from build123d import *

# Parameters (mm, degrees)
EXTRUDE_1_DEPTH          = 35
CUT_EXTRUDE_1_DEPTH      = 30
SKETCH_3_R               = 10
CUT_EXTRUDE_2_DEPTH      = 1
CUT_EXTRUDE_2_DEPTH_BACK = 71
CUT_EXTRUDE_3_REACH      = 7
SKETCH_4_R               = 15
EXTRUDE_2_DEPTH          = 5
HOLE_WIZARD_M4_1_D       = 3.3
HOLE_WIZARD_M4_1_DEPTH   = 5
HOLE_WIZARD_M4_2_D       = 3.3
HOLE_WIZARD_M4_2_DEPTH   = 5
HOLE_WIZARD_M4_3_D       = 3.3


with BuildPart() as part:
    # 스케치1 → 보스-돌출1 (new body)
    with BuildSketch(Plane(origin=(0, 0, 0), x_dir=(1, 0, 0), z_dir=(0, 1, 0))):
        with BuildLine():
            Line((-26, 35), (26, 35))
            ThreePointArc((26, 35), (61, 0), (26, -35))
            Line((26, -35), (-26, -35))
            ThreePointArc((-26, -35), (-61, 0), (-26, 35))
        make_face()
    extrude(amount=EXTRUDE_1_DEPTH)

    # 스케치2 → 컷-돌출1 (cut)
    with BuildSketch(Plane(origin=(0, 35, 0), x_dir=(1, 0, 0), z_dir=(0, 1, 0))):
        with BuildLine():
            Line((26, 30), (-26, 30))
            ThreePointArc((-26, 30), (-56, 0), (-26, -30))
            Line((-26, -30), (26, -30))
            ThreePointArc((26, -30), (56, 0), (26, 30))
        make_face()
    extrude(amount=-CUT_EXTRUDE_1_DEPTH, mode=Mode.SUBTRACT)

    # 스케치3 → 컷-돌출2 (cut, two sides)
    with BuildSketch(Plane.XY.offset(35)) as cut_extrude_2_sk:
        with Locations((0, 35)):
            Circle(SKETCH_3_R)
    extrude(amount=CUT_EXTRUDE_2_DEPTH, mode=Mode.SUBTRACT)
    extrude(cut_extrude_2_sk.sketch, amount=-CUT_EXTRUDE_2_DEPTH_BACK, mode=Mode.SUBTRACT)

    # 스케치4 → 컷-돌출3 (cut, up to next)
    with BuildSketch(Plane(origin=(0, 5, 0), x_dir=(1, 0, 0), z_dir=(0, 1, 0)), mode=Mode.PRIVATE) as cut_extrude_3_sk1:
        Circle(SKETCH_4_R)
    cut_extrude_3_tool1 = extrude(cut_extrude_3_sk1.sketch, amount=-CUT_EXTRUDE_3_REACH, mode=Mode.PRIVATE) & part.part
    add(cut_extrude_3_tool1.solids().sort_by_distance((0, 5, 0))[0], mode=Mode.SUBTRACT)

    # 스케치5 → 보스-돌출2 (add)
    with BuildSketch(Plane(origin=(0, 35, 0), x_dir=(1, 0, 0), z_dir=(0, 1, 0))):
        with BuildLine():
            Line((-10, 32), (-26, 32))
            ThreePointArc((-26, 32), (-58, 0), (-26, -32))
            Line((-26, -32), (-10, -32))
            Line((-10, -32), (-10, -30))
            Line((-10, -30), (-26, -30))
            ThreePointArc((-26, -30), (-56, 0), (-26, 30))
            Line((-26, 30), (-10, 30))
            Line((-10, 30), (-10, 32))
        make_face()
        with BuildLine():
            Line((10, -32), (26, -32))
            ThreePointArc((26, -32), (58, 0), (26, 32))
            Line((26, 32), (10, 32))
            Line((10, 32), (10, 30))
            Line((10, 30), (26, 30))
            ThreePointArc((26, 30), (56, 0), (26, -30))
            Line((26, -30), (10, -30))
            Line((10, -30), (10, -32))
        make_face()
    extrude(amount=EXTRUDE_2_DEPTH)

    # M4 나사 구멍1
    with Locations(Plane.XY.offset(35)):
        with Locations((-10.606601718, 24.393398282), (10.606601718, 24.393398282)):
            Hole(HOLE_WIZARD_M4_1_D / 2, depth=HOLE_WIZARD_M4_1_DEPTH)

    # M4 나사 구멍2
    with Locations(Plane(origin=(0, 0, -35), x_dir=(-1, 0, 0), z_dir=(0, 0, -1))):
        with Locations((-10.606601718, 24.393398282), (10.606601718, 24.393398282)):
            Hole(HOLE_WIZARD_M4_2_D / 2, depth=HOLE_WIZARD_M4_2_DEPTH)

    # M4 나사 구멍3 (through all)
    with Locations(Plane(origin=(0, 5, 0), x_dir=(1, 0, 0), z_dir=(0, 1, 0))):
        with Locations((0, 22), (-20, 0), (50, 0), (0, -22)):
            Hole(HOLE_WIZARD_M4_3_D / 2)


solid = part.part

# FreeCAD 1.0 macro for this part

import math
import FreeCAD as App
import Part
import Sketcher

doc = App.newDocument("Part")
body = doc.addObject("PartDesign::Body", "Body")

# Sketch on XZ plane
sketch1 = body.newObject("Sketcher::SketchObject", "Sketch")
sketch1.AttachmentSupport = (doc.getObject("XZ_Plane"), [""])
sketch1.MapMode = "FlatFace"
sketch1.addGeometry([
    Part.LineSegment(App.Vector(26, -35, 0), App.Vector(-26, -35, 0)),
    Part.ArcOfCircle(Part.Circle(App.Vector(-26, 0, 0), App.Vector(0, 0, 1), 35), math.radians(90), math.radians(270)),
    Part.LineSegment(App.Vector(-26, 35, 0), App.Vector(26, 35, 0)),
    Part.ArcOfCircle(Part.Circle(App.Vector(26, 0, 0), App.Vector(0, 0, 1), 35), math.radians(-90), math.radians(90)),
], False)
sketch1.addConstraint([
    Sketcher.Constraint("Tangent", 0, 2, 1, 2),
    Sketcher.Constraint("Tangent", 1, 1, 2, 1),
    Sketcher.Constraint("Tangent", 2, 2, 3, 2),
    Sketcher.Constraint("Tangent", 3, 1, 0, 1),
    Sketcher.Constraint("Horizontal", 0),
    Sketcher.Constraint("Horizontal", 2),
    Sketcher.Constraint("Symmetric", 1, 3, 3, 3, -1, 1),
    Sketcher.Constraint("Radius", 1, 35.0),
    Sketcher.Constraint("DistanceX", 0, 2, 0, 1, 52.0),
])
pad1 = body.newObject("PartDesign::Pad", "Pad")
pad1.Profile = sketch1
pad1.Length = 35
pad1.Reversed = True

# Sketch on XZ plane
sketch2 = body.newObject("Sketcher::SketchObject", "Sketch001")
sketch2.AttachmentSupport = (doc.getObject("XZ_Plane"), [""])
sketch2.MapMode = "FlatFace"
sketch2.AttachmentOffset = App.Placement(App.Vector(0, 0, -35), App.Rotation())
sketch2.addGeometry([
    Part.LineSegment(App.Vector(26, -30, 0), App.Vector(-26, -30, 0)),
    Part.ArcOfCircle(Part.Circle(App.Vector(-26, 0, 0), App.Vector(0, 0, 1), 30), math.radians(90), math.radians(270)),
    Part.LineSegment(App.Vector(-26, 30, 0), App.Vector(26, 30, 0)),
    Part.ArcOfCircle(Part.Circle(App.Vector(26, 0, 0), App.Vector(0, 0, 1), 30), math.radians(-90), math.radians(90)),
], False)
sketch2.addConstraint([
    Sketcher.Constraint("Tangent", 0, 2, 1, 2),
    Sketcher.Constraint("Tangent", 1, 1, 2, 1),
    Sketcher.Constraint("Tangent", 2, 2, 3, 2),
    Sketcher.Constraint("Tangent", 3, 1, 0, 1),
    Sketcher.Constraint("Horizontal", 0),
    Sketcher.Constraint("Horizontal", 2),
    Sketcher.Constraint("Symmetric", 1, 3, 3, 3, -1, 1),
    Sketcher.Constraint("Radius", 1, 30.0),
    Sketcher.Constraint("DistanceX", 0, 2, 0, 1, 52.0),
])
pocket1 = body.newObject("PartDesign::Pocket", "Pocket")
pocket1.Profile = sketch2
pocket1.Length = 30
pocket1.Reversed = True

# Sketch on XY plane
sketch3 = body.newObject("Sketcher::SketchObject", "Sketch002")
sketch3.AttachmentSupport = (doc.getObject("XY_Plane"), [""])
sketch3.MapMode = "FlatFace"
sketch3.AttachmentOffset = App.Placement(App.Vector(0, 0, 35), App.Rotation())
sketch3.addGeometry(Part.Circle(App.Vector(0, 35, 0), App.Vector(0, 0, 1), 10), False)
sketch3.addConstraint([
    Sketcher.Constraint("PointOnObject", 0, 3, -2),
    Sketcher.Constraint("Diameter", 0, 20.0),
    Sketcher.Constraint("DistanceY", -1, 1, 0, 3, 35.0),
])
pocket2 = body.newObject("PartDesign::Pocket", "Pocket001")
pocket2.Profile = sketch3
pocket2.Type = "ThroughAll"
pocket2.Midplane = True

# Sketch on XZ plane
sketch4 = body.newObject("Sketcher::SketchObject", "Sketch003")
sketch4.AttachmentSupport = (doc.getObject("XZ_Plane"), [""])
sketch4.MapMode = "FlatFace"
sketch4.AttachmentOffset = App.Placement(App.Vector(0, 0, -5), App.Rotation())
sketch4.addGeometry(Part.Circle(App.Vector(0, 0, 0), App.Vector(0, 0, 1), 15), False)
sketch4.addConstraint([
    Sketcher.Constraint("Coincident", 0, 3, -1, 1),
    Sketcher.Constraint("Diameter", 0, 30.0),
])
pocket3 = body.newObject("PartDesign::Pocket", "Pocket002")
pocket3.Profile = sketch4
pocket3.Type = "UpToFirst"
pocket3.Reversed = True

# Sketch on XZ plane
sketch5 = body.newObject("Sketcher::SketchObject", "Sketch004")
sketch5.AttachmentSupport = (doc.getObject("XZ_Plane"), [""])
sketch5.MapMode = "FlatFace"
sketch5.AttachmentOffset = App.Placement(App.Vector(0, 0, -35), App.Rotation())
sketch5.addGeometry([
    Part.LineSegment(App.Vector(-10, -32, 0), App.Vector(-26, -32, 0)),  # 0
    Part.ArcOfCircle(Part.Circle(App.Vector(-26, 0, 0), App.Vector(0, 0, 1), 32), math.radians(90), math.radians(270)),  # 1
    Part.LineSegment(App.Vector(-26, 32, 0), App.Vector(-10, 32, 0)),  # 2
    Part.LineSegment(App.Vector(-10, 32, 0), App.Vector(-10, 30, 0)),  # 3
    Part.LineSegment(App.Vector(-10, 30, 0), App.Vector(-26, 30, 0)),  # 4
    Part.ArcOfCircle(Part.Circle(App.Vector(-26, 0, 0), App.Vector(0, 0, 1), 30), math.radians(90), math.radians(270)),  # 5
    Part.LineSegment(App.Vector(-26, -30, 0), App.Vector(-10, -30, 0)),  # 6
    Part.LineSegment(App.Vector(-10, -30, 0), App.Vector(-10, -32, 0)),  # 7
    Part.LineSegment(App.Vector(10, 32, 0), App.Vector(26, 32, 0)),  # 8
    Part.ArcOfCircle(Part.Circle(App.Vector(26, 0, 0), App.Vector(0, 0, 1), 32), math.radians(-90), math.radians(90)),  # 9
    Part.LineSegment(App.Vector(26, -32, 0), App.Vector(10, -32, 0)),  # 10
    Part.LineSegment(App.Vector(10, -32, 0), App.Vector(10, -30, 0)),  # 11
    Part.LineSegment(App.Vector(10, -30, 0), App.Vector(26, -30, 0)),  # 12
    Part.ArcOfCircle(Part.Circle(App.Vector(26, 0, 0), App.Vector(0, 0, 1), 30), math.radians(-90), math.radians(90)),  # 13
    Part.LineSegment(App.Vector(26, 30, 0), App.Vector(10, 30, 0)),  # 14
    Part.LineSegment(App.Vector(10, 30, 0), App.Vector(10, 32, 0)),  # 15
], False)
sketch5.addConstraint([
    Sketcher.Constraint("Tangent", 0, 2, 1, 2),
    Sketcher.Constraint("Tangent", 1, 1, 2, 1),
    Sketcher.Constraint("Coincident", 2, 2, 3, 1),
    Sketcher.Constraint("Coincident", 3, 2, 4, 1),
    Sketcher.Constraint("Tangent", 4, 2, 5, 1),
    Sketcher.Constraint("Tangent", 5, 2, 6, 1),
    Sketcher.Constraint("Coincident", 6, 2, 7, 1),
    Sketcher.Constraint("Coincident", 7, 2, 0, 1),
    Sketcher.Constraint("Tangent", 8, 2, 9, 2),
    Sketcher.Constraint("Tangent", 9, 1, 10, 1),
    Sketcher.Constraint("Coincident", 10, 2, 11, 1),
    Sketcher.Constraint("Coincident", 11, 2, 12, 1),
    Sketcher.Constraint("Tangent", 12, 2, 13, 1),
    Sketcher.Constraint("Tangent", 13, 2, 14, 1),
    Sketcher.Constraint("Coincident", 14, 2, 15, 1),
    Sketcher.Constraint("Coincident", 15, 2, 8, 1),
    Sketcher.Constraint("Horizontal", 0),
    Sketcher.Constraint("Horizontal", 2),
    Sketcher.Constraint("Vertical", 3),
    Sketcher.Constraint("Horizontal", 4),
    Sketcher.Constraint("Horizontal", 6),
    Sketcher.Constraint("Vertical", 7),
    Sketcher.Constraint("Horizontal", 8),
    Sketcher.Constraint("Horizontal", 10),
    Sketcher.Constraint("Vertical", 11),
    Sketcher.Constraint("Horizontal", 12),
    Sketcher.Constraint("Horizontal", 14),
    Sketcher.Constraint("Vertical", 15),
    Sketcher.Constraint("Coincident", 5, 3, 1, 3),
    Sketcher.Constraint("Coincident", 13, 3, 9, 3),
    Sketcher.Constraint("Equal", 1, 9),
    Sketcher.Constraint("Equal", 5, 13),
    Sketcher.Constraint("Symmetric", 1, 3, 9, 3, -1, 1),
    Sketcher.Constraint("Symmetric", 7, 2, 10, 2, -2),
    Sketcher.Constraint("Vertical", 3, 2, 6, 2),
    Sketcher.Constraint("Vertical", 11, 2, 14, 2),
    Sketcher.Constraint("Radius", 1, 32.0),
    Sketcher.Constraint("Radius", 5, 30.0),
    Sketcher.Constraint("DistanceX", 0, 2, 0, 1, 16.0),
    Sketcher.Constraint("DistanceX", 1, 3, -1, 1, 26.0),
])
pad2 = body.newObject("PartDesign::Pad", "Pad001")
pad2.Profile = sketch5
pad2.Length = 5
pad2.Reversed = True

# Sketch on XY plane
sketch6 = body.newObject("Sketcher::SketchObject", "Sketch005")
sketch6.AttachmentSupport = (doc.getObject("XY_Plane"), [""])
sketch6.MapMode = "FlatFace"
sketch6.AttachmentOffset = App.Placement(App.Vector(0, 0, 35), App.Rotation())
sketch6.addGeometry([
    Part.Circle(App.Vector(-10.6, 24.4, 0), App.Vector(0, 0, 1), 1.6),
    Part.Circle(App.Vector(10.6, 24.4, 0), App.Vector(0, 0, 1), 1.6),
], False)
sketch6.addConstraint([
    Sketcher.Constraint("Equal", 0, 1),
    Sketcher.Constraint("Symmetric", 0, 3, 1, 3, -2),
    Sketcher.Constraint("Diameter", 0, 3.3),
    Sketcher.Constraint("DistanceX", 0, 3, -1, 1, 10.606602),
    Sketcher.Constraint("DistanceY", -1, 1, 0, 3, 24.393398),
])
doc.recompute()
hole = body.newObject("PartDesign::Hole", "Hole")
hole.Profile = sketch6
hole.ThreadType = "None"
hole.Diameter = 3.3
hole.DepthType = "Dimension"
hole.Depth = 5
hole.DrillPoint = "Flat"

# Sketch on XY plane
sketch7 = body.newObject("Sketcher::SketchObject", "Sketch006")
sketch7.AttachmentSupport = (doc.getObject("XY_Plane"), [""])
sketch7.MapMode = "FlatFace"
sketch7.AttachmentOffset = App.Placement(App.Vector(0, 0, -35), App.Rotation())
sketch7.addGeometry([
    Part.Circle(App.Vector(10.6, 24.4, 0), App.Vector(0, 0, 1), 1.6),
    Part.Circle(App.Vector(-10.6, 24.4, 0), App.Vector(0, 0, 1), 1.6),
], False)
sketch7.addConstraint([
    Sketcher.Constraint("Equal", 0, 1),
    Sketcher.Constraint("Symmetric", 0, 3, 1, 3, -2),
    Sketcher.Constraint("Diameter", 0, 3.3),
    Sketcher.Constraint("DistanceX", -1, 1, 0, 3, 10.606602),
    Sketcher.Constraint("DistanceY", -1, 1, 0, 3, 24.393398),
])
doc.recompute()
hole2 = body.newObject("PartDesign::Hole", "Hole001")
hole2.Profile = sketch7
hole2.ThreadType = "None"
hole2.Diameter = 3.3
hole2.DepthType = "Dimension"
hole2.Depth = 5
hole2.DrillPoint = "Flat"
hole2.Reversed = True

# Sketch on XZ plane
sketch8 = body.newObject("Sketcher::SketchObject", "Sketch007")
sketch8.AttachmentSupport = (doc.getObject("XZ_Plane"), [""])
sketch8.MapMode = "FlatFace"
sketch8.AttachmentOffset = App.Placement(App.Vector(0, 0, -5), App.Rotation())
sketch8.addGeometry([
    Part.Circle(App.Vector(0, -22, 0), App.Vector(0, 0, 1), 1.6),
    Part.Circle(App.Vector(-20, 0, 0), App.Vector(0, 0, 1), 1.6),
    Part.Circle(App.Vector(50, 0, 0), App.Vector(0, 0, 1), 1.6),
    Part.Circle(App.Vector(0, 22, 0), App.Vector(0, 0, 1), 1.6),
], False)
sketch8.addConstraint([
    Sketcher.Constraint("Equal", 0, 1),
    Sketcher.Constraint("Equal", 1, 2),
    Sketcher.Constraint("Equal", 2, 3),
    Sketcher.Constraint("Symmetric", 0, 3, 3, 3, -1, 1),
    Sketcher.Constraint("PointOnObject", 0, 3, -2),
    Sketcher.Constraint("PointOnObject", 1, 3, -1),
    Sketcher.Constraint("PointOnObject", 2, 3, -1),
    Sketcher.Constraint("Diameter", 0, 3.3),
    Sketcher.Constraint("DistanceY", 0, 3, -1, 1, 22.0),
    Sketcher.Constraint("DistanceX", 1, 3, -1, 1, 20.0),
    Sketcher.Constraint("DistanceX", -1, 1, 2, 3, 50.0),
])
doc.recompute()
hole3 = body.newObject("PartDesign::Hole", "Hole002")
hole3.Profile = sketch8
hole3.ThreadType = "None"
hole3.Diameter = 3.3
hole3.DepthType = "ThroughAll"
hole3.Reversed = True

doc.recompute()
